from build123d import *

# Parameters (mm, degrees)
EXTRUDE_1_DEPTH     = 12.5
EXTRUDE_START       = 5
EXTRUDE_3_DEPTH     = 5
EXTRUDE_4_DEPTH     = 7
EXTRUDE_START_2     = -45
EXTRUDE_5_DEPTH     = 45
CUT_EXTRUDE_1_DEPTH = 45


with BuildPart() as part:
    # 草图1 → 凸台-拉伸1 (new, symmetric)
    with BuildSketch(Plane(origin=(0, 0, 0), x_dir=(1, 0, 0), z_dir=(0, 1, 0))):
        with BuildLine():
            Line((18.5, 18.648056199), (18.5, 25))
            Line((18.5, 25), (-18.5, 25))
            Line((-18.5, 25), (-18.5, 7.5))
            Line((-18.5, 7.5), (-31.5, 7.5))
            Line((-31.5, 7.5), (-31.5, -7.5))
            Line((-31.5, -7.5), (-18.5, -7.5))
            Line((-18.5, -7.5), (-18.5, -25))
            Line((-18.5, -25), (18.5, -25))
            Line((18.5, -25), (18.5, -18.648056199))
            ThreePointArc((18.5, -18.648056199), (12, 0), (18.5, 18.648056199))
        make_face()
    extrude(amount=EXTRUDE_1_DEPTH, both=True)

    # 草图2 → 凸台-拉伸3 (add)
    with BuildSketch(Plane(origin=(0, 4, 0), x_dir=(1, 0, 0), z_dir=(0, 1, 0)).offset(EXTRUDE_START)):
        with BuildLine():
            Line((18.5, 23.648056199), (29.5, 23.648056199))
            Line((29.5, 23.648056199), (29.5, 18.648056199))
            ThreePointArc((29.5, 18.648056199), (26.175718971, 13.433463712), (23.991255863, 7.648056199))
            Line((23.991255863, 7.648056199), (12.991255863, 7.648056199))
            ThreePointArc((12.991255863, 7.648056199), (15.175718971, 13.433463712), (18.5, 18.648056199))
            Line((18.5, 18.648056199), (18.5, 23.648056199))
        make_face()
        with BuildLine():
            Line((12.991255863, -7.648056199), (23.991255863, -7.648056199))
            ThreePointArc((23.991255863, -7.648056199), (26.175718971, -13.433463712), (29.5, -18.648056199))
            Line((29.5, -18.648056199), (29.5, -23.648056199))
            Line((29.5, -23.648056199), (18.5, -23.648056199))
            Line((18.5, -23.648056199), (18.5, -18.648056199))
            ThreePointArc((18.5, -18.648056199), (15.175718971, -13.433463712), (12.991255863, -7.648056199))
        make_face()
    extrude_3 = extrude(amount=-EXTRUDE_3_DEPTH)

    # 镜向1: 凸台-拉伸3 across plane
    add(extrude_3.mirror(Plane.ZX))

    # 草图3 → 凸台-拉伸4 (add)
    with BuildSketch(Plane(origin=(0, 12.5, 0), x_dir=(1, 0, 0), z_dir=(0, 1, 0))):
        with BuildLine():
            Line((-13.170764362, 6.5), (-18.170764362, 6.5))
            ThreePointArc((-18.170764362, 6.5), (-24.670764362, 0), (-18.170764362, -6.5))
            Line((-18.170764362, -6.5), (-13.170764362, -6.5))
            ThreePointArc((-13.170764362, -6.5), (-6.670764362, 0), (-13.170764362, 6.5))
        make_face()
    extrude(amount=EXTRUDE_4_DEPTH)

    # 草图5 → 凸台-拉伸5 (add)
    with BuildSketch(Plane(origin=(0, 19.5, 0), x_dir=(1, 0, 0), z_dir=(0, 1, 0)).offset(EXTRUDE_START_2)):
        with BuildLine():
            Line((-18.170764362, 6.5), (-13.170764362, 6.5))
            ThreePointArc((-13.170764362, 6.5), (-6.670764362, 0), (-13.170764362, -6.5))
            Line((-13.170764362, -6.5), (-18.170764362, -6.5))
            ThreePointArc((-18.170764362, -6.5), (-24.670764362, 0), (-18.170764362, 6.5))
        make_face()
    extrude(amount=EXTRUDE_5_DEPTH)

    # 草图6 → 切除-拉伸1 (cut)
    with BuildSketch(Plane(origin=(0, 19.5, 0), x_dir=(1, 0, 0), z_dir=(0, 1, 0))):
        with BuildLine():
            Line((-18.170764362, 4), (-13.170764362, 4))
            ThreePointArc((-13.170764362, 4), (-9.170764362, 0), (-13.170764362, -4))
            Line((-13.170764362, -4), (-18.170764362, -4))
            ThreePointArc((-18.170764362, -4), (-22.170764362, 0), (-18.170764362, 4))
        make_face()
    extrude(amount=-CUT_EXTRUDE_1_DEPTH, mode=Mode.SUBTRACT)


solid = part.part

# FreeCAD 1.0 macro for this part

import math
import FreeCAD as App
import Part
import Sketcher

V = App.Vector
Q = App.Units.Quantity

doc = App.newDocument("Part")
params = doc.addObject("Spreadsheet::Sheet", "Params")
for row, (alias, value) in enumerate([
    ("sketch1_radius", "30 mm"),
    ("sketch1_width", "37 mm"),
    ("sketch1_width2", "13 mm"),
    ("sketch1_height", "15 mm"),
    ("sketch1_height2", "17.5 mm"),
    ("pad1_length", "25 mm"),
    ("sketch2_radius", "30 mm"),
    ("sketch2_width", "11 mm"),
    ("sketch2_height", "5 mm"),
    ("pad2_length", "5 mm"),
    ("sketch3_radius", "6.5 mm"),
    ("sketch3_width", "5 mm"),
    ("pad3_length", "7 mm"),
    ("sketch4_radius", "6.5 mm"),
    ("sketch4_width", "5 mm"),
    ("pad4_length", "45 mm"),
    ("sketch5_radius", "4 mm"),
    ("sketch5_width", "5 mm"),
    ("pocket1_length", "45 mm"),
], start=1):
    params.set(f"A{row}", alias)
    params.set(f"B{row}", "=" + value)
    params.setAlias(f"B{row}", alias)

body = doc.addObject("PartDesign::Body", "Body")

sketch1 = body.newObject("Sketcher::SketchObject", "Sketch")
sketch1.AttachmentSupport = (doc.getObject("XZ_Plane"), [""])
sketch1.MapMode = "FlatFace"
sketch1.addGeometry([
    Part.LineSegment(V(18, -19, 0), V(18, -25, 0)),
    Part.LineSegment(V(18, -25, 0), V(-18, -25, 0)),
    Part.LineSegment(V(-18, -25, 0), V(-18, -8, 0)),
    Part.LineSegment(V(-18, -8, 0), V(-32, -8, 0)),
    Part.LineSegment(V(-32, -8, 0), V(-32, 8, 0)),
    Part.LineSegment(V(-32, 8, 0), V(-18, 8, 0)),
    Part.LineSegment(V(-18, 8, 0), V(-18, 25, 0)),
    Part.LineSegment(V(-18, 25, 0), V(18, 25, 0)),
    Part.LineSegment(V(18, 25, 0), V(18, 19, 0)),
    Part.ArcOfCircle(Part.Circle(V(42, 0, 0), V(0, 0, 1), 30), math.radians(142), math.radians(218)),
], False)
sketch1.addConstraint([
    Sketcher.Constraint("Coincident", 0, 2, 1, 1),
    Sketcher.Constraint("Coincident", 1, 2, 2, 1),
    Sketcher.Constraint("Coincident", 2, 2, 3, 1),
    Sketcher.Constraint("Coincident", 3, 2, 4, 1),
    Sketcher.Constraint("Coincident", 4, 2, 5, 1),
    Sketcher.Constraint("Coincident", 5, 2, 6, 1),
    Sketcher.Constraint("Coincident", 6, 2, 7, 1),
    Sketcher.Constraint("Coincident", 7, 2, 8, 1),
    Sketcher.Constraint("Coincident", 8, 2, 9, 1),
    Sketcher.Constraint("Coincident", 9, 2, 0, 1),
    Sketcher.Constraint("Vertical", 0),
    Sketcher.Constraint("Horizontal", 1),
    Sketcher.Constraint("Vertical", 2),
    Sketcher.Constraint("Horizontal", 3),
    Sketcher.Constraint("Vertical", 4),
    Sketcher.Constraint("Horizontal", 5),
    Sketcher.Constraint("Vertical", 6),
    Sketcher.Constraint("Horizontal", 7),
    Sketcher.Constraint("Vertical", 8),
    Sketcher.Constraint("Symmetric", 0, 2, 6, 2, -1, 1),
    Sketcher.Constraint("Symmetric", 2, 2, 5, 2, -1),
    Sketcher.Constraint("Symmetric", 8, 2, 9, 2, -1),
    Sketcher.Constraint("Radius", 9, Q("30 mm")),
    Sketcher.Constraint("DistanceX", 1, 2, 1, 1, Q("37 mm")),
    Sketcher.Constraint("DistanceX", 3, 2, 3, 1, Q("13 mm")),
    Sketcher.Constraint("DistanceY", 4, 1, 4, 2, Q("15 mm")),
    Sketcher.Constraint("DistanceY", 2, 1, 2, 2, Q("17.5 mm")),
    Sketcher.Constraint("DistanceX", -1, 1, 9, 3, Q("42 mm")),
])
sketch1.setExpression("Constraints[22]", "Params.sketch1_radius")
sketch1.setExpression("Constraints[23]", "Params.sketch1_width")
sketch1.setExpression("Constraints[24]", "Params.sketch1_width2")
sketch1.setExpression("Constraints[25]", "Params.sketch1_height")
sketch1.setExpression("Constraints[26]", "Params.sketch1_height2")
pad1 = body.newObject("PartDesign::Pad", "Pad")
pad1.Profile = sketch1
pad1.setExpression("Length", "Params.pad1_length")
pad1.Midplane = True

sketch2 = body.newObject("Sketcher::SketchObject", "Sketch001")
sketch2.AttachmentSupport = (doc.getObject("XZ_Plane"), [""])
sketch2.MapMode = "FlatFace"
sketch2.AttachmentOffset = App.Placement(V(0, 0, -9), App.Rotation())
sketch2.addGeometry([
    Part.LineSegment(V(30, -24, 0), V(18, -24, 0)),
    Part.LineSegment(V(18, -24, 0), V(18, -19, 0)),
    Part.ArcOfCircle(Part.Circle(V(42, 0, 0), V(0, 0, 1), 30), math.radians(-165), math.radians(-142)),
    Part.LineSegment(V(13, -8, 0), V(24, -8, 0)),
    Part.ArcOfCircle(Part.Circle(V(53, 0, 0), V(0, 0, 1), 30), math.radians(-165), math.radians(-142)),
    Part.LineSegment(V(30, -19, 0), V(30, -24, 0)),
    Part.LineSegment(V(24, 8, 0), V(13, 8, 0)),
    Part.ArcOfCircle(Part.Circle(V(42, 0, 0), V(0, 0, 1), 30), math.radians(142), math.radians(165)),
    Part.LineSegment(V(18, 19, 0), V(18, 24, 0)),
    Part.LineSegment(V(18, 24, 0), V(30, 24, 0)),
    Part.LineSegment(V(30, 24, 0), V(30, 19, 0)),
    Part.ArcOfCircle(Part.Circle(V(53, 0, 0), V(0, 0, 1), 30), math.radians(142), math.radians(165)),
], False)
sketch2.addConstraint([
    Sketcher.Constraint("Coincident", 0, 2, 1, 1),
    Sketcher.Constraint("Coincident", 1, 2, 2, 2),
    Sketcher.Constraint("Coincident", 2, 1, 3, 1),
    Sketcher.Constraint("Coincident", 3, 2, 4, 1),
    Sketcher.Constraint("Coincident", 4, 2, 5, 1),
    Sketcher.Constraint("Coincident", 5, 2, 0, 1),
    Sketcher.Constraint("Coincident", 6, 2, 7, 2),
    Sketcher.Constraint("Coincident", 7, 1, 8, 1),
    Sketcher.Constraint("Coincident", 8, 2, 9, 1),
    Sketcher.Constraint("Coincident", 9, 2, 10, 1),
    Sketcher.Constraint("Coincident", 10, 2, 11, 1),
    Sketcher.Constraint("Coincident", 11, 2, 6, 1),
    Sketcher.Constraint("Horizontal", 0),
    Sketcher.Constraint("Vertical", 1),
    Sketcher.Constraint("Horizontal", 3),
    Sketcher.Constraint("Vertical", 5),
    Sketcher.Constraint("Horizontal", 6),
    Sketcher.Constraint("Vertical", 8),
    Sketcher.Constraint("Horizontal", 9),
    Sketcher.Constraint("Vertical", 10),
    Sketcher.Constraint("Coincident", 7, 3, 2, 3),
    Sketcher.Constraint("Coincident", 11, 3, 4, 3),
    Sketcher.Constraint("Equal", 2, 4),
    Sketcher.Constraint("Equal", 4, 7),
    Sketcher.Constraint("Equal", 7, 11),
    Sketcher.Constraint("Symmetric", 2, 1, 6, 2, -1),
    Sketcher.Constraint("Symmetric", 0, 2, 8, 2, -1),
    Sketcher.Constraint("Symmetric", 4, 2, 10, 2, -1),
    Sketcher.Constraint("Horizontal", 1, 2, 4, 2),
    Sketcher.Constraint("Radius", 2, Q("30 mm")),
    Sketcher.Constraint("DistanceX", 0, 2, 0, 1, Q("11 mm")),
    Sketcher.Constraint("DistanceY", 1, 1, 1, 2, Q("5 mm")),
    Sketcher.Constraint("DistanceX", -1, 1, 2, 3, Q("42 mm")),
    Sketcher.Constraint("DistanceY", 1, 2, 2, 1, Q("11 mm")),
    Sketcher.Constraint("DistanceX", -1, 1, 0, 2, Q("18.5 mm")),
])
sketch2.setExpression("Constraints[29]", "Params.sketch2_radius")
sketch2.setExpression("Constraints[30]", "Params.sketch2_width")
sketch2.setExpression("Constraints[31]", "Params.sketch2_height")
pad2 = body.newObject("PartDesign::Pad", "Pad001")
pad2.Profile = sketch2
pad2.setExpression("Length", "Params.pad2_length")
doc.recompute()

mirrored = body.newObject("PartDesign::Mirrored", "Mirrored")
mirrored.Originals = [pad2]
mirrored.MirrorPlane = (doc.getObject("XZ_Plane"), [""])
body.Tip = mirrored

sketch3 = body.newObject("Sketcher::SketchObject", "Sketch002")
sketch3.AttachmentSupport = (doc.getObject("XZ_Plane"), [""])
sketch3.MapMode = "FlatFace"
sketch3.AttachmentOffset = App.Placement(V(0, 0, -12.5), App.Rotation())
sketch3.addGeometry([
    Part.LineSegment(V(-13, -6, 0), V(-18, -6, 0)),
    Part.ArcOfCircle(Part.Circle(V(-18, 0, 0), V(0, 0, 1), 6), math.radians(90), math.radians(270)),
    Part.LineSegment(V(-18, 6, 0), V(-13, 6, 0)),
    Part.ArcOfCircle(Part.Circle(V(-13, 0, 0), V(0, 0, 1), 6), math.radians(-90), math.radians(90)),
], False)
sketch3.addConstraint([
    Sketcher.Constraint("Tangent", 0, 2, 1, 2),
    Sketcher.Constraint("Tangent", 1, 1, 2, 1),
    Sketcher.Constraint("Tangent", 2, 2, 3, 2),
    Sketcher.Constraint("Tangent", 3, 1, 0, 1),
    Sketcher.Constraint("Horizontal", 0),
    Sketcher.Constraint("Horizontal", 2),
    Sketcher.Constraint("PointOnObject", 1, 3, -1),
    Sketcher.Constraint("Radius", 1, Q("6.5 mm")),
    Sketcher.Constraint("DistanceX", 0, 2, 0, 1, Q("5 mm")),
    Sketcher.Constraint("DistanceX", 1, 3, -1, 1, Q("18.170764 mm")),
])
sketch3.setExpression("Constraints[7]", "Params.sketch3_radius")
sketch3.setExpression("Constraints[8]", "Params.sketch3_width")
pad3 = body.newObject("PartDesign::Pad", "Pad002")
pad3.Profile = sketch3
pad3.setExpression("Length", "Params.pad3_length")
pad3.Reversed = True

sketch4 = body.newObject("Sketcher::SketchObject", "Sketch003")
sketch4.AttachmentSupport = (doc.getObject("XZ_Plane"), [""])
sketch4.MapMode = "FlatFace"
sketch4.AttachmentOffset = App.Placement(V(0, 0, 25.5), App.Rotation())
sketch4.addGeometry([
    Part.LineSegment(V(-13, -6, 0), V(-18, -6, 0)),
    Part.ArcOfCircle(Part.Circle(V(-18, 0, 0), V(0, 0, 1), 6), math.radians(90), math.radians(270)),
    Part.LineSegment(V(-18, 6, 0), V(-13, 6, 0)),
    Part.ArcOfCircle(Part.Circle(V(-13, 0, 0), V(0, 0, 1), 6), math.radians(-90), math.radians(90)),
], False)
sketch4.addConstraint([
    Sketcher.Constraint("Tangent", 0, 2, 1, 2),
    Sketcher.Constraint("Tangent", 1, 1, 2, 1),
    Sketcher.Constraint("Tangent", 2, 2, 3, 2),
    Sketcher.Constraint("Tangent", 3, 1, 0, 1),
    Sketcher.Constraint("Horizontal", 0),
    Sketcher.Constraint("Horizontal", 2),
    Sketcher.Constraint("PointOnObject", 1, 3, -1),
    Sketcher.Constraint("Radius", 1, Q("6.5 mm")),
    Sketcher.Constraint("DistanceX", 0, 2, 0, 1, Q("5 mm")),
    Sketcher.Constraint("DistanceX", 1, 3, -1, 1, Q("18.170764 mm")),
])
sketch4.setExpression("Constraints[7]", "Params.sketch4_radius")
sketch4.setExpression("Constraints[8]", "Params.sketch4_width")
pad4 = body.newObject("PartDesign::Pad", "Pad003")
pad4.Profile = sketch4
pad4.setExpression("Length", "Params.pad4_length")
pad4.Reversed = True

sketch5 = body.newObject("Sketcher::SketchObject", "Sketch004")
sketch5.AttachmentSupport = (doc.getObject("XZ_Plane"), [""])
sketch5.MapMode = "FlatFace"
sketch5.AttachmentOffset = App.Placement(V(0, 0, -19.5), App.Rotation())
sketch5.addGeometry([
    Part.LineSegment(V(-13.2, -4, 0), V(-18.2, -4, 0)),
    Part.ArcOfCircle(Part.Circle(V(-18.2, 0, 0), V(0, 0, 1), 4), math.radians(90), math.radians(270)),
    Part.LineSegment(V(-18.2, 4, 0), V(-13.2, 4, 0)),
    Part.ArcOfCircle(Part.Circle(V(-13.2, 0, 0), V(0, 0, 1), 4), math.radians(-90), math.radians(90)),
], False)
sketch5.addConstraint([
    Sketcher.Constraint("Tangent", 0, 2, 1, 2),
    Sketcher.Constraint("Tangent", 1, 1, 2, 1),
    Sketcher.Constraint("Tangent", 2, 2, 3, 2),
    Sketcher.Constraint("Tangent", 3, 1, 0, 1),
    Sketcher.Constraint("Horizontal", 0),
    Sketcher.Constraint("Horizontal", 2),
    Sketcher.Constraint("PointOnObject", 1, 3, -1),
    Sketcher.Constraint("Radius", 1, Q("4 mm")),
    Sketcher.Constraint("DistanceX", 0, 2, 0, 1, Q("5 mm")),
    Sketcher.Constraint("DistanceX", 1, 3, -1, 1, Q("18.170764 mm")),
])
sketch5.setExpression("Constraints[7]", "Params.sketch5_radius")
sketch5.setExpression("Constraints[8]", "Params.sketch5_width")
pocket1 = body.newObject("PartDesign::Pocket", "Pocket")
pocket1.Profile = sketch5
pocket1.setExpression("Length", "Params.pocket1_length")
pocket1.Reversed = True

doc.recompute()
